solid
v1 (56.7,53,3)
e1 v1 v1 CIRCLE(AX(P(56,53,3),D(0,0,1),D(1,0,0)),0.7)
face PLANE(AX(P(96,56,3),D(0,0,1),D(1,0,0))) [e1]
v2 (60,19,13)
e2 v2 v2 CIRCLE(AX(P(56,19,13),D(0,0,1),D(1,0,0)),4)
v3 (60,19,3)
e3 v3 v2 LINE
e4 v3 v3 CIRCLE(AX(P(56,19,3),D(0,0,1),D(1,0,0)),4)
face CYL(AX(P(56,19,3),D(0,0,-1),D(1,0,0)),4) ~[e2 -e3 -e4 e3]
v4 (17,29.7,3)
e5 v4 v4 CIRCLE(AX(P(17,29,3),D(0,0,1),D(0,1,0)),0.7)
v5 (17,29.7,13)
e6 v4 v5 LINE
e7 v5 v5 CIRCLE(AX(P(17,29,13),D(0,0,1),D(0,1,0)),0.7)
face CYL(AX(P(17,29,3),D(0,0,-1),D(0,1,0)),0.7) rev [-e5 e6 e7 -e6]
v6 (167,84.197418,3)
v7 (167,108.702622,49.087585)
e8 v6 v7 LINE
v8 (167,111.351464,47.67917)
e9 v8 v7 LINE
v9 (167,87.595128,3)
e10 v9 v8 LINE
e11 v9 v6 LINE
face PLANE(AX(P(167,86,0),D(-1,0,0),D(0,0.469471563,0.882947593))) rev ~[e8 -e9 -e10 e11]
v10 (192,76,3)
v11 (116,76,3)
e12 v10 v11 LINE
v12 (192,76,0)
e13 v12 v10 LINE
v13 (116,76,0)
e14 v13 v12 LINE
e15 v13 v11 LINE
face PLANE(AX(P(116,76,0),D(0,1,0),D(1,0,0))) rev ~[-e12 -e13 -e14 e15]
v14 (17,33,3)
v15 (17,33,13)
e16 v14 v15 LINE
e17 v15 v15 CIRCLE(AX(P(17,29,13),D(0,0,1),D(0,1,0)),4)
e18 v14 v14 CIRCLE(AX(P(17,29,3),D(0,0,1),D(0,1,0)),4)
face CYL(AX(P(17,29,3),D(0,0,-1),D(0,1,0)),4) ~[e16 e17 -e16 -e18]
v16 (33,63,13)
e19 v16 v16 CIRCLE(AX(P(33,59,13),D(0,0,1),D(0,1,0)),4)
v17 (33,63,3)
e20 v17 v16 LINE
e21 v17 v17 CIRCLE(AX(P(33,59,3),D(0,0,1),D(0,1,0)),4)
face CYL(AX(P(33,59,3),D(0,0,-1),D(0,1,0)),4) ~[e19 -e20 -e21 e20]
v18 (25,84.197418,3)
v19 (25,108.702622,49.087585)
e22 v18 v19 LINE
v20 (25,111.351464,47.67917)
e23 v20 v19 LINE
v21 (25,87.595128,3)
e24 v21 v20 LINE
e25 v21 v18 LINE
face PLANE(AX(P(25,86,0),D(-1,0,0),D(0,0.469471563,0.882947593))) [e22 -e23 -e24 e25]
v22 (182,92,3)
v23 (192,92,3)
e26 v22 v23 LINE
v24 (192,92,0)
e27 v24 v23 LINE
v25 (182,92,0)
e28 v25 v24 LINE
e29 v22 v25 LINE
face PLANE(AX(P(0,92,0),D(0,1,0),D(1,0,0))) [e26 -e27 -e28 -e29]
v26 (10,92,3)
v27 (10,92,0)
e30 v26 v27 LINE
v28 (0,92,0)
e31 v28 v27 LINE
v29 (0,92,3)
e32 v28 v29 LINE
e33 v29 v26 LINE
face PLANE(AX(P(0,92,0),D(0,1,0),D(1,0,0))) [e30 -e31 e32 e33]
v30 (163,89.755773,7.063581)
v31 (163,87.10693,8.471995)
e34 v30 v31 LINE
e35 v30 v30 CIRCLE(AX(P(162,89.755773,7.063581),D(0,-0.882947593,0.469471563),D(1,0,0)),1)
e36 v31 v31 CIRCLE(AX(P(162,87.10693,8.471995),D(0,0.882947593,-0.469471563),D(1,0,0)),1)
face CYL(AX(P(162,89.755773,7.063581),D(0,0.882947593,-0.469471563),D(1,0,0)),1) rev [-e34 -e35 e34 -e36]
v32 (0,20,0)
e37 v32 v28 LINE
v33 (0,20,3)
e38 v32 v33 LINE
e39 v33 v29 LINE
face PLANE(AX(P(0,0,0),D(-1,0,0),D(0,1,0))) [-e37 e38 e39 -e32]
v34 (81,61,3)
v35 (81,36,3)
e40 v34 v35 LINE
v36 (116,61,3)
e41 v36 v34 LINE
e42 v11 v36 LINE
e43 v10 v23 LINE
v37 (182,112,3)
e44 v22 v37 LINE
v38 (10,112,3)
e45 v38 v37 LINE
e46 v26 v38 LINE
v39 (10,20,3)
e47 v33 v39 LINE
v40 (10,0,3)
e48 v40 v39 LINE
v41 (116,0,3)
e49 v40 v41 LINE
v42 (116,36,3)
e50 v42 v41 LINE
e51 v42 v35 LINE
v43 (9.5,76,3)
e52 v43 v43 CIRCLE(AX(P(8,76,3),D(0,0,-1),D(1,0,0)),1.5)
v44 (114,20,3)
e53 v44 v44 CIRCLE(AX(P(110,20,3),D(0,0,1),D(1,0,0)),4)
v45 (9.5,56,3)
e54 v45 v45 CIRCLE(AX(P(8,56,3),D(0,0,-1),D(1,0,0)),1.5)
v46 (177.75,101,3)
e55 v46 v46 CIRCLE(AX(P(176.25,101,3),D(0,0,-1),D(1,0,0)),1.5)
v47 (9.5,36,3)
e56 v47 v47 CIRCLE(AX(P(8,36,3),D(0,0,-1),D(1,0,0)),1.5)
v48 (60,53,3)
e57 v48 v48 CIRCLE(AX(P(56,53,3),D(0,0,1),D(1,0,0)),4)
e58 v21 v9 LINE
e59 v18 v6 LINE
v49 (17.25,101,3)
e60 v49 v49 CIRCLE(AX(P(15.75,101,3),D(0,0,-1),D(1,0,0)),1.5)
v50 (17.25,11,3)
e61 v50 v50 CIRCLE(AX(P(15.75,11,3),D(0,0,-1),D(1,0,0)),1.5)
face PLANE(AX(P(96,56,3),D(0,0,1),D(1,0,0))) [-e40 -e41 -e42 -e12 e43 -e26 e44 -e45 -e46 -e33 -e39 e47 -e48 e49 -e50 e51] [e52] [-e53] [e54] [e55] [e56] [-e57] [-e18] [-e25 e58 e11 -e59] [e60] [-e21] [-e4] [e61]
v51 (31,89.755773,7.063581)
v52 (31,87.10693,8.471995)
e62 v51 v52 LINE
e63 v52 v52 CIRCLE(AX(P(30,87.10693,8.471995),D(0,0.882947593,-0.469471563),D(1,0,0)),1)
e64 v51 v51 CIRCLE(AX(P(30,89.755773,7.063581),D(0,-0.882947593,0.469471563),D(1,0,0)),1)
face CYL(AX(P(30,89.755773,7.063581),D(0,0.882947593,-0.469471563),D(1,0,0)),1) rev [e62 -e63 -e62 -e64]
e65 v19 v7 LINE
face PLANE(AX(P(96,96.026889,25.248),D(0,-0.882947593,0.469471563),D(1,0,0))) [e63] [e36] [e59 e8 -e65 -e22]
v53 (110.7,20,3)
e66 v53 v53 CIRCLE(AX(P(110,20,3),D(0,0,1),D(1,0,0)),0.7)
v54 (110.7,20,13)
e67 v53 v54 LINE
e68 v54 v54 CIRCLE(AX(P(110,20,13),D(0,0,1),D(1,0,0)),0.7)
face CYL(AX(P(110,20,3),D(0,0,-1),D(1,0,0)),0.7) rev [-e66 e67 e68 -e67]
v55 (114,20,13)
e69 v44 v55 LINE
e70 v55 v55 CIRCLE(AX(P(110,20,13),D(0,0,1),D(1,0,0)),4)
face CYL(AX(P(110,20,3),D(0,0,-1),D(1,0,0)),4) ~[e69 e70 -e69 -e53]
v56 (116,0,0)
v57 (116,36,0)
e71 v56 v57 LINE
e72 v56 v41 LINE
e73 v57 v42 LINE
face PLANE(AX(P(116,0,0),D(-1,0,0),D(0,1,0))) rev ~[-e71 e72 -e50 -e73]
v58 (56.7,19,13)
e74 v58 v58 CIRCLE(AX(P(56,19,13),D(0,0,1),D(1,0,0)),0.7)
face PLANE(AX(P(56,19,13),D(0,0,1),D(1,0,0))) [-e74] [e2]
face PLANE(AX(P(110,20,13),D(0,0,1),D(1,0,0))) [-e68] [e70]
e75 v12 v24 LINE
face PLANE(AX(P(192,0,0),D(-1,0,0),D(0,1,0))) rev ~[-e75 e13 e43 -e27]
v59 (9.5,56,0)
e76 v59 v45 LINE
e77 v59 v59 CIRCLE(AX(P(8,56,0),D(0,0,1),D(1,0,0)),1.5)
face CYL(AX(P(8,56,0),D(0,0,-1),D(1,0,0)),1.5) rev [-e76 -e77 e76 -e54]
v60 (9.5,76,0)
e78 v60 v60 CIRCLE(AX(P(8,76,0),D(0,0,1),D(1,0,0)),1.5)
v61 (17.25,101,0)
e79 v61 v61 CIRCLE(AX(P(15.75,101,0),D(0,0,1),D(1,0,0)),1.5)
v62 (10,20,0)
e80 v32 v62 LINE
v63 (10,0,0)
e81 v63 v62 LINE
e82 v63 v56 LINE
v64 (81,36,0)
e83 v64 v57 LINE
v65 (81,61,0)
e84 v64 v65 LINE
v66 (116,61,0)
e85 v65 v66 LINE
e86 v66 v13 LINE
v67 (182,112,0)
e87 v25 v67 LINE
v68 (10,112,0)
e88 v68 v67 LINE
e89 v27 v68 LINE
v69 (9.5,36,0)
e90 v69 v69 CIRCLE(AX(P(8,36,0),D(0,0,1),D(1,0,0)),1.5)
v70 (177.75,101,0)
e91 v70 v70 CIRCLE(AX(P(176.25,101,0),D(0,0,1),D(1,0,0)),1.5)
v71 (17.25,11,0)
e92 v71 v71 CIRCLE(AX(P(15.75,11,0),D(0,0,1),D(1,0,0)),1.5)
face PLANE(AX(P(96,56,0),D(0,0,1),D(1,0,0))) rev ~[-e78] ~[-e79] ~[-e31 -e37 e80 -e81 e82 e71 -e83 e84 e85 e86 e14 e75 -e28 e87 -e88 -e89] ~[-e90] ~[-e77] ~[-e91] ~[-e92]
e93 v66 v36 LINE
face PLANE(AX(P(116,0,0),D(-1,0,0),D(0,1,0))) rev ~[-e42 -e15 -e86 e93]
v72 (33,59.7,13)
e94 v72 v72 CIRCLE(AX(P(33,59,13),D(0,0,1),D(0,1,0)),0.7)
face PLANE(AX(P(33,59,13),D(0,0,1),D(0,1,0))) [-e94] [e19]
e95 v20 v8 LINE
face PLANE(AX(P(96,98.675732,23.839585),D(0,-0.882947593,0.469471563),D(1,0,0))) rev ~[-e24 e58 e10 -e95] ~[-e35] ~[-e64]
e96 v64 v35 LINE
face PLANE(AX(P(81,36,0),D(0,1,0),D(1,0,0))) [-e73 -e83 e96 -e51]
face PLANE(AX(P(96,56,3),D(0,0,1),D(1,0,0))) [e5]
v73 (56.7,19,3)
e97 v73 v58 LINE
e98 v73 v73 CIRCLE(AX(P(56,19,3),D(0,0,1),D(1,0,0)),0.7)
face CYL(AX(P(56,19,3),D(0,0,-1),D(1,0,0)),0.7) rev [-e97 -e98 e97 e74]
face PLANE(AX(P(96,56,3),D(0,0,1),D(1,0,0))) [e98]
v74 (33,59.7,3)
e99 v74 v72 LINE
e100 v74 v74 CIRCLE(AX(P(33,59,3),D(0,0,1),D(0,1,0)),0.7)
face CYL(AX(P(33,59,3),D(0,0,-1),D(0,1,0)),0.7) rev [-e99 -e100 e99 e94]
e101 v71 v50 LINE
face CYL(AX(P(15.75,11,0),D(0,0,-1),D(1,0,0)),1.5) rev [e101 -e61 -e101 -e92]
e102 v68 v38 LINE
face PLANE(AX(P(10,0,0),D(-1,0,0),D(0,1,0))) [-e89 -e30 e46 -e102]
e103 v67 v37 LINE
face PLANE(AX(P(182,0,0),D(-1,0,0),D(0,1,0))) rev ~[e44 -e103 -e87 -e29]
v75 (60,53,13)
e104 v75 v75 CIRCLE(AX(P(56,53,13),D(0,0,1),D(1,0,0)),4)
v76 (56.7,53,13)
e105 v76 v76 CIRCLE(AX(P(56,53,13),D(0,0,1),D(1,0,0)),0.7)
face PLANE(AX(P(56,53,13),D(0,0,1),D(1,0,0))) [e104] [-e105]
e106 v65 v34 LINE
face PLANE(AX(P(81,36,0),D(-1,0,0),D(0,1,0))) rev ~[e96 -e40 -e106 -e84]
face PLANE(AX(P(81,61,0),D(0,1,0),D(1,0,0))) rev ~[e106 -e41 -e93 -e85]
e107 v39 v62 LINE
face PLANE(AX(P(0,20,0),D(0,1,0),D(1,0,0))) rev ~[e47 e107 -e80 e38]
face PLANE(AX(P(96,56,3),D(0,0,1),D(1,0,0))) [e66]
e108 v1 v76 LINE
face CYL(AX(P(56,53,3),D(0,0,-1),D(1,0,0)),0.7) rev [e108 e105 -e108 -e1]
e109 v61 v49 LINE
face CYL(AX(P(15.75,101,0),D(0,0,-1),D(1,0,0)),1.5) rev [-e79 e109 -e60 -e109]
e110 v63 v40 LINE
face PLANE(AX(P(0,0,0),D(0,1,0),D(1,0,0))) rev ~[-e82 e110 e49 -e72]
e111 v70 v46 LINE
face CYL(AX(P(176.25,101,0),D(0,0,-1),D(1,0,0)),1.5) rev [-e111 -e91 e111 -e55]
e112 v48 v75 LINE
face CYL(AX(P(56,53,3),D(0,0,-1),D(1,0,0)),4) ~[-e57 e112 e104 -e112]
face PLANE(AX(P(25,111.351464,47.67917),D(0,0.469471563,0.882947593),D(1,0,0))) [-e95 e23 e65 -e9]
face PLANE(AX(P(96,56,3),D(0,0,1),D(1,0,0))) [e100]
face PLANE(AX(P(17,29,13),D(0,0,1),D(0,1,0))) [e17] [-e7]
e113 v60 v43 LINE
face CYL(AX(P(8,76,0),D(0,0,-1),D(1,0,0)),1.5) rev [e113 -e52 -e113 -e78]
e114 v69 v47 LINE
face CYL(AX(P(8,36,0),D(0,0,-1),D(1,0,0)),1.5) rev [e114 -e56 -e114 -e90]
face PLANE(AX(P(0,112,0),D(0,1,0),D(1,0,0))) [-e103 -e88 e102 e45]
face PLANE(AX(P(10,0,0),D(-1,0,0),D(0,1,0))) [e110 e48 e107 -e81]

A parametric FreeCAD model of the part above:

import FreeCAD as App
import Part
import Sketcher
from FreeCAD import Vector
Q = App.Units.Quantity

doc = App.newDocument("Part")
body = doc.addObject("PartDesign::Body", "Body")

sketch1 = body.newObject("Sketcher::SketchObject", "Sketch")
sketch1.AttachmentSupport = (doc.getObject("XY_Plane"), [""])
sketch1.MapMode = "FlatFace"
sketch1.addGeometry([
    Part.LineSegment(Vector(81, 61, 0), Vector(81, 36, 0)),
    Part.LineSegment(Vector(81, 36, 0), Vector(116, 36, 0)),
    Part.LineSegment(Vector(116, 36, 0), Vector(116, 61, 0)),
    Part.LineSegment(Vector(116, 61, 0), Vector(81, 61, 0)),
], False)
sketch1.addConstraint([
    Sketcher.Constraint("Coincident", 0, 2, 1, 1),
    Sketcher.Constraint("Coincident", 1, 2, 2, 1),
    Sketcher.Constraint("Coincident", 2, 2, 3, 1),
    Sketcher.Constraint("Coincident", 3, 2, 0, 1),
    Sketcher.Constraint("Vertical", 0),
    Sketcher.Constraint("Horizontal", 1),
    Sketcher.Constraint("Vertical", 2),
    Sketcher.Constraint("Horizontal", 3),
    Sketcher.Constraint("DistanceX", 1, 1, 1, 2, Q("35 mm")),
    Sketcher.Constraint("DistanceY", 0, 2, 0, 1, Q("25 mm")),
    Sketcher.Constraint("DistanceX", -1, 1, 0, 2, Q("81 mm")),
    Sketcher.Constraint("DistanceY", -1, 1, 0, 2, Q("36 mm")),
])
pad1 = body.newObject("PartDesign::Pad", "Pad")
pad1.Profile = sketch1
pad1.Length = 10
body2 = doc.addObject("PartDesign::Body", "Body001")

sketch2 = body2.newObject("Sketcher::SketchObject", "Sketch001")
sketch2.AttachmentSupport = (doc.getObject("XY_Plane001"), [""])
sketch2.MapMode = "FlatFace"
sketch2.AttachmentOffset = App.Placement(Vector(0, 0, 3), App.Rotation())
sketch2.addGeometry(Part.Circle(Vector(0, 0, 0), Vector(0, 0, 1), 0.7), False)
sketch2.addConstraint([
    Sketcher.Constraint("Coincident", 0, 3, -1, 1),
    Sketcher.Constraint("Diameter", 0, Q("1.4 mm")),
])
pad2 = body2.newObject("PartDesign::Pad", "Pad001")
pad2.Profile = sketch2
pad2.Length = 10
body3 = doc.addObject("PartDesign::Body", "Body002")

sketch3 = body3.newObject("Sketcher::SketchObject", "Sketch002")
sketch3.AttachmentSupport = (doc.getObject("XY_Plane002"), [""])
sketch3.MapMode = "FlatFace"
sketch3.AttachmentOffset = App.Placement(Vector(0, 0, 3), App.Rotation())
sketch3.addGeometry(Part.Circle(Vector(0, 0, 0), Vector(0, 0, 1), 4), False)
sketch3.addConstraint([
    Sketcher.Constraint("Coincident", 0, 3, -1, 1),
    Sketcher.Constraint("Diameter", 0, Q("8 mm")),
])
pad3 = body3.newObject("PartDesign::Pad", "Pad002")
pad3.Profile = sketch3
pad3.Length = 10
doc.recompute()

boolean = body3.newObject("PartDesign::Boolean", "Boolean")
boolean.Type = "Cut"
boolean.addObjects([body2])
body4 = doc.addObject("PartDesign::Body", "Body003")
doc.recompute()

body3.Placement = App.Placement(Vector(0, 34, 0), App.Rotation(Vector(0, 0, 1), 0))
boolean2 = body4.newObject("PartDesign::Boolean", "Boolean001")
boolean2.Type = "Fuse"
boolean2.addObjects([body3])
body5 = doc.addObject("PartDesign::Body", "Body004")

sketch4 = body5.newObject("Sketcher::SketchObject", "Sketch003")
sketch4.AttachmentSupport = (doc.getObject("XY_Plane004"), [""])
sketch4.MapMode = "FlatFace"
sketch4.AttachmentOffset = App.Placement(Vector(0, 0, 3), App.Rotation())
sketch4.addGeometry(Part.Circle(Vector(0, 0, 0), Vector(0, 0, 1), 0.7), False)
sketch4.addConstraint([
    Sketcher.Constraint("Coincident", 0, 3, -1, 1),
    Sketcher.Constraint("Diameter", 0, Q("1.4 mm")),
])
pad4 = body5.newObject("PartDesign::Pad", "Pad003")
pad4.Profile = sketch4
pad4.Length = 10
body6 = doc.addObject("PartDesign::Body", "Body005")

sketch5 = body6.newObject("Sketcher::SketchObject", "Sketch004")
sketch5.AttachmentSupport = (doc.getObject("XY_Plane005"), [""])
sketch5.MapMode = "FlatFace"
sketch5.AttachmentOffset = App.Placement(Vector(0, 0, 3), App.Rotation())
sketch5.addGeometry(Part.Circle(Vector(0, 0, 0), Vector(0, 0, 1), 4), False)
sketch5.addConstraint([
    Sketcher.Constraint("Coincident", 0, 3, -1, 1),
    Sketcher.Constraint("Diameter", 0, Q("8 mm")),
])
pad5 = body6.newObject("PartDesign::Pad", "Pad004")
pad5.Profile = sketch5
pad5.Length = 10
doc.recompute()

boolean3 = body6.newObject("PartDesign::Boolean", "Boolean002")
boolean3.Type = "Cut"
boolean3.addObjects([body5])
body7 = doc.addObject("PartDesign::Body", "Body006")
doc.recompute()

body6.Placement = App.Placement(Vector(54, 1, 0), App.Rotation(Vector(0, 0, 1), 0))
boolean4 = body7.newObject("PartDesign::Boolean", "Boolean003")
boolean4.Type = "Fuse"
boolean4.addObjects([body6])
body8 = doc.addObject("PartDesign::Body", "Body007")

sketch6 = body8.newObject("Sketcher::SketchObject", "Sketch005")
sketch6.AttachmentSupport = (doc.getObject("XY_Plane007"), [""])
sketch6.MapMode = "FlatFace"
sketch6.AttachmentOffset = App.Placement(Vector(0, 0, 3), App.Rotation())
sketch6.addGeometry(Part.Circle(Vector(0, 0, 0), Vector(0, 0, 1), 0.7), False)
sketch6.addConstraint([
    Sketcher.Constraint("Coincident", 0, 3, -1, 1),
    Sketcher.Constraint("Diameter", 0, Q("1.4 mm")),
])
pad6 = body8.newObject("PartDesign::Pad", "Pad005")
pad6.Profile = sketch6
pad6.Length = 10
body9 = doc.addObject("PartDesign::Body", "Body008")
body9.AllowCompound = True

sketch7 = body9.newObject("Sketcher::SketchObject", "Sketch006")
sketch7.AttachmentSupport = (doc.getObject("XY_Plane008"), [""])
sketch7.MapMode = "FlatFace"
sketch7.AttachmentOffset = App.Placement(Vector(0, 0, 3), App.Rotation())
sketch7.addGeometry(Part.Circle(Vector(0, 0, 0), Vector(0, 0, 1), 4), False)
sketch7.addConstraint([
    Sketcher.Constraint("Coincident", 0, 3, -1, 1),
    Sketcher.Constraint("Diameter", 0, Q("8 mm")),
])
pad7 = body9.newObject("PartDesign::Pad", "Pad006")
pad7.Profile = sketch7
pad7.Length = 10
doc.recompute()

boolean5 = body9.newObject("PartDesign::Boolean", "Boolean004")
boolean5.Type = "Cut"
boolean5.addObjects([body8])
doc.recompute()

boolean6 = body9.newObject("PartDesign::Boolean", "Boolean005")
boolean6.Type = "Fuse"
boolean6.addObjects([body4])
doc.recompute()

boolean7 = body9.newObject("PartDesign::Boolean", "Boolean006")
boolean7.Type = "Fuse"
boolean7.addObjects([body7])
body10 = doc.addObject("PartDesign::Body", "Body009")
body10.AllowCompound = True
doc.recompute()

body9.Placement = App.Placement(Vector(56, 19, 0), App.Rotation(Vector(0, 0, 1), 0))
boolean8 = body10.newObject("PartDesign::Boolean", "Boolean007")
boolean8.Type = "Fuse"
boolean8.addObjects([body9])
body11 = doc.addObject("PartDesign::Body", "Body010")

sketch8 = body11.newObject("Sketcher::SketchObject", "Sketch007")
sketch8.AttachmentSupport = (doc.getObject("XY_Plane010"), [""])
sketch8.MapMode = "FlatFace"
sketch8.AttachmentOffset = App.Placement(Vector(0, 0, 3), App.Rotation())
sketch8.addGeometry(Part.Circle(Vector(0, 0, 0), Vector(0, 0, 1), 0.7), False)
sketch8.addConstraint([
    Sketcher.Constraint("Coincident", 0, 3, -1, 1),
    Sketcher.Constraint("Diameter", 0, Q("1.4 mm")),
])
pad8 = body11.newObject("PartDesign::Pad", "Pad007")
pad8.Profile = sketch8
pad8.Length = 10
body12 = doc.addObject("PartDesign::Body", "Body011")

sketch9 = body12.newObject("Sketcher::SketchObject", "Sketch008")
sketch9.AttachmentSupport = (doc.getObject("XY_Plane011"), [""])
sketch9.MapMode = "FlatFace"
sketch9.AttachmentOffset = App.Placement(Vector(0, 0, 3), App.Rotation())
sketch9.addGeometry(Part.Circle(Vector(0, 0, 0), Vector(0, 0, 1), 4), False)
sketch9.addConstraint([
    Sketcher.Constraint("Coincident", 0, 3, -1, 1),
    Sketcher.Constraint("Diameter", 0, Q("8 mm")),
])
pad9 = body12.newObject("PartDesign::Pad", "Pad008")
pad9.Profile = sketch9
pad9.Length = 10
doc.recompute()

boolean9 = body12.newObject("PartDesign::Boolean", "Boolean008")
boolean9.Type = "Cut"
boolean9.addObjects([body11])
body13 = doc.addObject("PartDesign::Body", "Body012")
doc.recompute()

body12.Placement = App.Placement(Vector(0, 16, 0), App.Rotation(Vector(0, 0, 1), 0))
boolean10 = body13.newObject("PartDesign::Boolean", "Boolean009")
boolean10.Type = "Fuse"
boolean10.addObjects([body12])
body14 = doc.addObject("PartDesign::Body", "Body013")

sketch10 = body14.newObject("Sketcher::SketchObject", "Sketch009")
sketch10.AttachmentSupport = (doc.getObject("XY_Plane013"), [""])
sketch10.MapMode = "FlatFace"
sketch10.AttachmentOffset = App.Placement(Vector(0, 0, 3), App.Rotation())
sketch10.addGeometry(Part.Circle(Vector(0, 0, 0), Vector(0, 0, 1), 0.7), False)
sketch10.addConstraint([
    Sketcher.Constraint("Coincident", 0, 3, -1, 1),
    Sketcher.Constraint("Diameter", 0, Q("1.4 mm")),
])
pad10 = body14.newObject("PartDesign::Pad", "Pad009")
pad10.Profile = sketch10
pad10.Length = 10
body15 = doc.addObject("PartDesign::Body", "Body014")

sketch11 = body15.newObject("Sketcher::SketchObject", "Sketch010")
sketch11.AttachmentSupport = (doc.getObject("XY_Plane014"), [""])
sketch11.MapMode = "FlatFace"
sketch11.AttachmentOffset = App.Placement(Vector(0, 0, 3), App.Rotation())
sketch11.addGeometry(Part.Circle(Vector(0, 0, 0), Vector(0, 0, 1), 4), False)
sketch11.addConstraint([
    Sketcher.Constraint("Coincident", 0, 3, -1, 1),
    Sketcher.Constraint("Diameter", 0, Q("8 mm")),
])
pad11 = body15.newObject("PartDesign::Pad", "Pad010")
pad11.Profile = sketch11
pad11.Length = 10
doc.recompute()

boolean11 = body15.newObject("PartDesign::Boolean", "Boolean010")
boolean11.Type = "Cut"
boolean11.addObjects([body14])
body16 = doc.addObject("PartDesign::Body", "Body015")
body16.AllowCompound = True
doc.recompute()

body15.Placement = App.Placement(Vector(30, 0, 0), App.Rotation(Vector(0, 0, 1), 0))
boolean12 = body16.newObject("PartDesign::Boolean", "Boolean011")
boolean12.Type = "Fuse"
boolean12.addObjects([body15])
doc.recompute()

boolean13 = body16.newObject("PartDesign::Boolean", "Boolean012")
boolean13.Type = "Fuse"
boolean13.addObjects([body13])
body17 = doc.addObject("PartDesign::Body", "Body016")
body17.AllowCompound = True
doc.recompute()

body16.Placement = App.Placement(Vector(33, 29, 0), App.Rotation(Vector(0, 0, 1), 90))
boolean14 = body17.newObject("PartDesign::Boolean", "Boolean013")
boolean14.Type = "Fuse"
boolean14.addObjects([body16])
body18 = doc.addObject("PartDesign::Body", "Body017")

sketch12 = body18.newObject("Sketcher::SketchObject", "Sketch011")
sketch12.AttachmentSupport = (doc.getObject("XY_Plane017"), [""])
sketch12.MapMode = "FlatFace"
sketch12.addGeometry(Part.Circle(Vector(5, 8, 0), Vector(0, 0, 1), 1), False)
sketch12.addConstraint([
    Sketcher.Constraint("Diameter", 0, Q("2 mm")),
    Sketcher.Constraint("DistanceX", -1, 1, 0, 3, Q("5 mm")),
    Sketcher.Constraint("DistanceY", -1, 1, 0, 3, Q("8 mm")),
])
pad12 = body18.newObject("PartDesign::Pad", "Pad011")
pad12.Profile = sketch12
pad12.Length = 10
body19 = doc.addObject("PartDesign::Body", "Body018")

sketch13 = body19.newObject("Sketcher::SketchObject", "Sketch012")
sketch13.AttachmentSupport = (doc.getObject("XY_Plane018"), [""])
sketch13.MapMode = "FlatFace"
sketch13.addGeometry(Part.Circle(Vector(137, 8, 0), Vector(0, 0, 1), 1), False)
sketch13.addConstraint([
    Sketcher.Constraint("Diameter", 0, Q("2 mm")),
    Sketcher.Constraint("DistanceX", -1, 1, 0, 3, Q("137 mm")),
    Sketcher.Constraint("DistanceY", -1, 1, 0, 3, Q("8 mm")),
])
pad13 = body19.newObject("PartDesign::Pad", "Pad012")
pad13.Profile = sketch13
pad13.Length = 10
body20 = doc.addObject("PartDesign::Body", "Body019")

sketch14 = body20.newObject("Sketcher::SketchObject", "Sketch013")
sketch14.AttachmentSupport = (doc.getObject("XY_Plane019"), [""])
sketch14.MapMode = "FlatFace"
sketch14.addGeometry([
    Part.LineSegment(Vector(0, 54, 0), Vector(0, 0, 0)),
    Part.LineSegment(Vector(0, 0, 0), Vector(142, 0, 0)),
    Part.LineSegment(Vector(142, 0, 0), Vector(142, 54, 0)),
    Part.LineSegment(Vector(142, 54, 0), Vector(0, 54, 0)),
], False)
sketch14.addConstraint([
    Sketcher.Constraint("Coincident", 0, 2, 1, 1),
    Sketcher.Constraint("Coincident", 1, 2, 2, 1),
    Sketcher.Constraint("Coincident", 2, 2, 3, 1),
    Sketcher.Constraint("Coincident", 3, 2, 0, 1),
    Sketcher.Constraint("Vertical", 0),
    Sketcher.Constraint("Horizontal", 1),
    Sketcher.Constraint("Vertical", 2),
    Sketcher.Constraint("Horizontal", 3),
    Sketcher.Constraint("Coincident", 0, 2, -1, 1),
    Sketcher.Constraint("DistanceX", 1, 1, 1, 2, Q("142 mm")),
    Sketcher.Constraint("DistanceY", 0, 2, 0, 1, Q("54 mm")),
])
pad14 = body20.newObject("PartDesign::Pad", "Pad013")
pad14.Profile = sketch14
pad14.Length = 3
doc.recompute()

boolean15 = body20.newObject("PartDesign::Boolean", "Boolean014")
boolean15.Type = "Cut"
boolean15.addObjects([body19])
doc.recompute()

boolean16 = body20.newObject("PartDesign::Boolean", "Boolean015")
boolean16.Type = "Cut"
boolean16.addObjects([body18])
body21 = doc.addObject("PartDesign::Body", "Body020")
doc.recompute()

body20.Placement = App.Placement(Vector(25, 86, 0), App.Rotation(Vector(1, 0, 0), 62))
boolean17 = body21.newObject("PartDesign::Boolean", "Boolean016")
boolean17.Type = "Fuse"
boolean17.addObjects([body20])
body22 = doc.addObject("PartDesign::Body", "Body021")

sketch15 = body22.newObject("Sketcher::SketchObject", "Sketch014")
sketch15.AttachmentSupport = (doc.getObject("XY_Plane021"), [""])
sketch15.MapMode = "FlatFace"
sketch15.addGeometry(Part.Circle(Vector(8, 56, 0), Vector(0, 0, 1), 1.5), False)
sketch15.addConstraint([
    Sketcher.Constraint("Diameter", 0, Q("3 mm")),
    Sketcher.Constraint("DistanceX", -1, 1, 0, 3, Q("8 mm")),
    Sketcher.Constraint("DistanceY", -1, 1, 0, 3, Q("56 mm")),
])
pad15 = body22.newObject("PartDesign::Pad", "Pad014")
pad15.Profile = sketch15
pad15.Length = 10
body23 = doc.addObject("PartDesign::Body", "Body022")

sketch16 = body23.newObject("Sketcher::SketchObject", "Sketch015")
sketch16.AttachmentSupport = (doc.getObject("XY_Plane022"), [""])
sketch16.MapMode = "FlatFace"
sketch16.addGeometry(Part.Circle(Vector(8, 76, 0), Vector(0, 0, 1), 1.5), False)
sketch16.addConstraint([
    Sketcher.Constraint("Diameter", 0, Q("3 mm")),
    Sketcher.Constraint("DistanceX", -1, 1, 0, 3, Q("8 mm")),
    Sketcher.Constraint("DistanceY", -1, 1, 0, 3, Q("76 mm")),
])
pad16 = body23.newObject("PartDesign::Pad", "Pad015")
pad16.Profile = sketch16
pad16.Length = 10
body24 = doc.addObject("PartDesign::Body", "Body023")

sketch17 = body24.newObject("Sketcher::SketchObject", "Sketch016")
sketch17.AttachmentSupport = (doc.getObject("XY_Plane023"), [""])
sketch17.MapMode = "FlatFace"
sketch17.addGeometry(Part.Circle(Vector(8, 36, 0), Vector(0, 0, 1), 1.5), False)
sketch17.addConstraint([
    Sketcher.Constraint("Diameter", 0, Q("3 mm")),
    Sketcher.Constraint("DistanceX", -1, 1, 0, 3, Q("8 mm")),
    Sketcher.Constraint("DistanceY", -1, 1, 0, 3, Q("36 mm")),
])
pad17 = body24.newObject("PartDesign::Pad", "Pad016")
pad17.Profile = sketch17
pad17.Length = 10
body25 = doc.addObject("PartDesign::Body", "Body024")

sketch18 = body25.newObject("Sketcher::SketchObject", "Sketch017")
sketch18.AttachmentSupport = (doc.getObject("XY_Plane024"), [""])
sketch18.MapMode = "FlatFace"
sketch18.addGeometry(Part.Circle(Vector(15.75, 11, 0), Vector(0, 0, 1), 1.5), False)
sketch18.addConstraint([
    Sketcher.Constraint("Diameter", 0, Q("3 mm")),
    Sketcher.Constraint("DistanceY", -1, 1, 0, 3, Q("11 mm")),
    Sketcher.Constraint("DistanceX", -1, 1, 0, 3, Q("15.75 mm")),
])
pad18 = body25.newObject("PartDesign::Pad", "Pad017")
pad18.Profile = sketch18
pad18.Length = 10
body26 = doc.addObject("PartDesign::Body", "Body025")

sketch19 = body26.newObject("Sketcher::SketchObject", "Sketch018")
sketch19.AttachmentSupport = (doc.getObject("XY_Plane025"), [""])
sketch19.MapMode = "FlatFace"
sketch19.addGeometry(Part.Circle(Vector(15.75, 101, 0), Vector(0, 0, 1), 1.5), False)
sketch19.addConstraint([
    Sketcher.Constraint("Diameter", 0, Q("3 mm")),
    Sketcher.Constraint("DistanceY", -1, 1, 0, 3, Q("101 mm")),
    Sketcher.Constraint("DistanceX", -1, 1, 0, 3, Q("15.75 mm")),
])
pad19 = body26.newObject("PartDesign::Pad", "Pad018")
pad19.Profile = sketch19
pad19.Length = 10
body27 = doc.addObject("PartDesign::Body", "Body026")

sketch20 = body27.newObject("Sketcher::SketchObject", "Sketch019")
sketch20.AttachmentSupport = (doc.getObject("XY_Plane026"), [""])
sketch20.MapMode = "FlatFace"
sketch20.addGeometry(Part.Circle(Vector(176.25, 101, 0), Vector(0, 0, 1), 1.5), False)
sketch20.addConstraint([
    Sketcher.Constraint("Diameter", 0, Q("3 mm")),
    Sketcher.Constraint("DistanceY", -1, 1, 0, 3, Q("101 mm")),
    Sketcher.Constraint("DistanceX", -1, 1, 0, 3, Q("176.25 mm")),
])
pad20 = body27.newObject("PartDesign::Pad", "Pad019")
pad20.Profile = sketch20
pad20.Length = 10
body28 = doc.addObject("PartDesign::Body", "Body027")

sketch21 = body28.newObject("Sketcher::SketchObject", "Sketch020")
sketch21.AttachmentSupport = (doc.getObject("XY_Plane027"), [""])
sketch21.MapMode = "FlatFace"
sketch21.addGeometry([
    Part.LineSegment(Vector(116, 76, 0), Vector(116, 0, 0)),
    Part.LineSegment(Vector(116, 0, 0), Vector(192, 0, 0)),
    Part.LineSegment(Vector(192, 0, 0), Vector(192, 76, 0)),
    Part.LineSegment(Vector(192, 76, 0), Vector(116, 76, 0)),
], False)
sketch21.addConstraint([
    Sketcher.Constraint("Coincident", 0, 2, 1, 1),
    Sketcher.Constraint("Coincident", 1, 2, 2, 1),
    Sketcher.Constraint("Coincident", 2, 2, 3, 1),
    Sketcher.Constraint("Coincident", 3, 2, 0, 1),
    Sketcher.Constraint("Vertical", 0),
    Sketcher.Constraint("Horizontal", 1),
    Sketcher.Constraint("Vertical", 2),
    Sketcher.Constraint("Horizontal", 3),
    Sketcher.Constraint("PointOnObject", 0, 2, -1),
    Sketcher.Constraint("Equal", 3, 0),
    Sketcher.Constraint("DistanceX", 1, 1, 1, 2, Q("76 mm")),
    Sketcher.Constraint("DistanceX", -1, 1, 0, 2, Q("116 mm")),
])
pad21 = body28.newObject("PartDesign::Pad", "Pad020")
pad21.Profile = sketch21
pad21.Length = 10
body29 = doc.addObject("PartDesign::Body", "Body028")

sketch22 = body29.newObject("Sketcher::SketchObject", "Sketch021")
sketch22.AttachmentSupport = (doc.getObject("XY_Plane028"), [""])
sketch22.MapMode = "FlatFace"
sketch22.addGeometry([
    Part.LineSegment(Vector(0, 92, 0), Vector(0, 20, 0)),
    Part.LineSegment(Vector(0, 20, 0), Vector(192, 20, 0)),
    Part.LineSegment(Vector(192, 20, 0), Vector(192, 92, 0)),
    Part.LineSegment(Vector(192, 92, 0), Vector(0, 92, 0)),
], False)
sketch22.addConstraint([
    Sketcher.Constraint("Coincident", 0, 2, 1, 1),
    Sketcher.Constraint("Coincident", 1, 2, 2, 1),
    Sketcher.Constraint("Coincident", 2, 2, 3, 1),
    Sketcher.Constraint("Coincident", 3, 2, 0, 1),
    Sketcher.Constraint("Vertical", 0),
    Sketcher.Constraint("Horizontal", 1),
    Sketcher.Constraint("Vertical", 2),
    Sketcher.Constraint("Horizontal", 3),
    Sketcher.Constraint("PointOnObject", 0, 2, -2),
    Sketcher.Constraint("DistanceX", 1, 1, 1, 2, Q("192 mm")),
    Sketcher.Constraint("DistanceY", 0, 2, 0, 1, Q("72 mm")),
    Sketcher.Constraint("DistanceY", -1, 1, 0, 2, Q("20 mm")),
])
pad22 = body29.newObject("PartDesign::Pad", "Pad021")
pad22.Profile = sketch22
pad22.Length = 3
body30 = doc.addObject("PartDesign::Body", "Body029")

sketch23 = body30.newObject("Sketcher::SketchObject", "Sketch022")
sketch23.AttachmentSupport = (doc.getObject("XY_Plane029"), [""])
sketch23.MapMode = "FlatFace"
sketch23.addGeometry([
    Part.LineSegment(Vector(10, 112, 0), Vector(10, 0, 0)),
    Part.LineSegment(Vector(10, 0, 0), Vector(182, 0, 0)),
    Part.LineSegment(Vector(182, 0, 0), Vector(182, 112, 0)),
    Part.LineSegment(Vector(182, 112, 0), Vector(10, 112, 0)),
], False)
sketch23.addConstraint([
    Sketcher.Constraint("Coincident", 0, 2, 1, 1),
    Sketcher.Constraint("Coincident", 1, 2, 2, 1),
    Sketcher.Constraint("Coincident", 2, 2, 3, 1),
    Sketcher.Constraint("Coincident", 3, 2, 0, 1),
    Sketcher.Constraint("Vertical", 0),
    Sketcher.Constraint("Horizontal", 1),
    Sketcher.Constraint("Vertical", 2),
    Sketcher.Constraint("Horizontal", 3),
    Sketcher.Constraint("PointOnObject", 0, 2, -1),
    Sketcher.Constraint("DistanceX", 1, 1, 1, 2, Q("172 mm")),
    Sketcher.Constraint("DistanceY", 0, 2, 0, 1, Q("112 mm")),
    Sketcher.Constraint("DistanceX", -1, 1, 0, 2, Q("10 mm")),
])
pad23 = body30.newObject("PartDesign::Pad", "Pad022")
pad23.Profile = sketch23
pad23.Length = 3
doc.recompute()

boolean18 = body30.newObject("PartDesign::Boolean", "Boolean017")
boolean18.Type = "Fuse"
boolean18.addObjects([body29])
body31 = doc.addObject("PartDesign::Body", "Body030")
body31.AllowCompound = True

sketch24 = body31.newObject("Sketcher::SketchObject", "Sketch023")
sketch24.AttachmentSupport = (doc.getObject("XY_Plane030"), [""])
sketch24.MapMode = "FlatFace"
sketch24.addGeometry([
    Part.LineSegment(Vector(0, 112, 0), Vector(0, 0, 0)),
    Part.LineSegment(Vector(0, 0, 0), Vector(192, 0, 0)),
    Part.LineSegment(Vector(192, 0, 0), Vector(192, 112, 0)),
    Part.LineSegment(Vector(192, 112, 0), Vector(0, 112, 0)),
], False)
sketch24.addConstraint([
    Sketcher.Constraint("Coincident", 0, 2, 1, 1),
    Sketcher.Constraint("Coincident", 1, 2, 2, 1),
    Sketcher.Constraint("Coincident", 2, 2, 3, 1),
    Sketcher.Constraint("Coincident", 3, 2, 0, 1),
    Sketcher.Constraint("Vertical", 0),
    Sketcher.Constraint("Horizontal", 1),
    Sketcher.Constraint("Vertical", 2),
    Sketcher.Constraint("Horizontal", 3),
    Sketcher.Constraint("Coincident", 0, 2, -1, 1),
    Sketcher.Constraint("DistanceX", 1, 1, 1, 2, Q("192 mm")),
    Sketcher.Constraint("DistanceY", 0, 2, 0, 1, Q("112 mm")),
])
pad24 = body31.newObject("PartDesign::Pad", "Pad023")
pad24.Profile = sketch24
pad24.Length = 3
doc.recompute()

boolean19 = body31.newObject("PartDesign::Boolean", "Boolean018")
boolean19.Type = "Cut"
boolean19.addObjects([body30])
body32 = doc.addObject("PartDesign::Body", "Body031")

sketch25 = body32.newObject("Sketcher::SketchObject", "Sketch024")
sketch25.AttachmentSupport = (doc.getObject("XY_Plane031"), [""])
sketch25.MapMode = "FlatFace"
sketch25.addGeometry([
    Part.LineSegment(Vector(0, 112, 0), Vector(0, 0, 0)),
    Part.LineSegment(Vector(0, 0, 0), Vector(192, 0, 0)),
    Part.LineSegment(Vector(192, 0, 0), Vector(192, 112, 0)),
    Part.LineSegment(Vector(192, 112, 0), Vector(0, 112, 0)),
], False)
sketch25.addConstraint([
    Sketcher.Constraint("Coincident", 0, 2, 1, 1),
    Sketcher.Constraint("Coincident", 1, 2, 2, 1),
    Sketcher.Constraint("Coincident", 2, 2, 3, 1),
    Sketcher.Constraint("Coincident", 3, 2, 0, 1),
    Sketcher.Constraint("Vertical", 0),
    Sketcher.Constraint("Horizontal", 1),
    Sketcher.Constraint("Vertical", 2),
    Sketcher.Constraint("Horizontal", 3),
    Sketcher.Constraint("Coincident", 0, 2, -1, 1),
    Sketcher.Constraint("DistanceX", 1, 1, 1, 2, Q("192 mm")),
    Sketcher.Constraint("DistanceY", 0, 2, 0, 1, Q("112 mm")),
])
pad25 = body32.newObject("PartDesign::Pad", "Pad024")
pad25.Profile = sketch25
pad25.Length = 3
doc.recompute()

boolean20 = body32.newObject("PartDesign::Boolean", "Boolean019")
boolean20.Type = "Cut"
boolean20.addObjects([body31])
doc.recompute()

boolean21 = body32.newObject("PartDesign::Boolean", "Boolean020")
boolean21.Type = "Cut"
boolean21.addObjects([body28])
doc.recompute()

boolean22 = body32.newObject("PartDesign::Boolean", "Boolean021")
boolean22.Type = "Cut"
boolean22.addObjects([body27])
doc.recompute()

boolean23 = body32.newObject("PartDesign::Boolean", "Boolean022")
boolean23.Type = "Cut"
boolean23.addObjects([body26])
doc.recompute()

boolean24 = body32.newObject("PartDesign::Boolean", "Boolean023")
boolean24.Type = "Cut"
boolean24.addObjects([body25])
doc.recompute()

boolean25 = body32.newObject("PartDesign::Boolean", "Boolean024")
boolean25.Type = "Cut"
boolean25.addObjects([body24])
doc.recompute()

boolean26 = body32.newObject("PartDesign::Boolean", "Boolean025")
boolean26.Type = "Cut"
boolean26.addObjects([body23])
doc.recompute()

boolean27 = body32.newObject("PartDesign::Boolean", "Boolean026")
boolean27.Type = "Cut"
boolean27.addObjects([body22])
doc.recompute()

boolean28 = body32.newObject("PartDesign::Boolean", "Boolean027")
boolean28.Type = "Fuse"
boolean28.addObjects([body21])
doc.recompute()

boolean29 = body32.newObject("PartDesign::Boolean", "Boolean028")
boolean29.Type = "Fuse"
boolean29.addObjects([body10])
doc.recompute()

boolean30 = body32.newObject("PartDesign::Boolean", "Boolean029")
boolean30.Type = "Fuse"
boolean30.addObjects([body17])
doc.recompute()

boolean31 = body32.newObject("PartDesign::Boolean", "Boolean030")
boolean31.Type = "Cut"
boolean31.addObjects([body])

doc.recompute()
